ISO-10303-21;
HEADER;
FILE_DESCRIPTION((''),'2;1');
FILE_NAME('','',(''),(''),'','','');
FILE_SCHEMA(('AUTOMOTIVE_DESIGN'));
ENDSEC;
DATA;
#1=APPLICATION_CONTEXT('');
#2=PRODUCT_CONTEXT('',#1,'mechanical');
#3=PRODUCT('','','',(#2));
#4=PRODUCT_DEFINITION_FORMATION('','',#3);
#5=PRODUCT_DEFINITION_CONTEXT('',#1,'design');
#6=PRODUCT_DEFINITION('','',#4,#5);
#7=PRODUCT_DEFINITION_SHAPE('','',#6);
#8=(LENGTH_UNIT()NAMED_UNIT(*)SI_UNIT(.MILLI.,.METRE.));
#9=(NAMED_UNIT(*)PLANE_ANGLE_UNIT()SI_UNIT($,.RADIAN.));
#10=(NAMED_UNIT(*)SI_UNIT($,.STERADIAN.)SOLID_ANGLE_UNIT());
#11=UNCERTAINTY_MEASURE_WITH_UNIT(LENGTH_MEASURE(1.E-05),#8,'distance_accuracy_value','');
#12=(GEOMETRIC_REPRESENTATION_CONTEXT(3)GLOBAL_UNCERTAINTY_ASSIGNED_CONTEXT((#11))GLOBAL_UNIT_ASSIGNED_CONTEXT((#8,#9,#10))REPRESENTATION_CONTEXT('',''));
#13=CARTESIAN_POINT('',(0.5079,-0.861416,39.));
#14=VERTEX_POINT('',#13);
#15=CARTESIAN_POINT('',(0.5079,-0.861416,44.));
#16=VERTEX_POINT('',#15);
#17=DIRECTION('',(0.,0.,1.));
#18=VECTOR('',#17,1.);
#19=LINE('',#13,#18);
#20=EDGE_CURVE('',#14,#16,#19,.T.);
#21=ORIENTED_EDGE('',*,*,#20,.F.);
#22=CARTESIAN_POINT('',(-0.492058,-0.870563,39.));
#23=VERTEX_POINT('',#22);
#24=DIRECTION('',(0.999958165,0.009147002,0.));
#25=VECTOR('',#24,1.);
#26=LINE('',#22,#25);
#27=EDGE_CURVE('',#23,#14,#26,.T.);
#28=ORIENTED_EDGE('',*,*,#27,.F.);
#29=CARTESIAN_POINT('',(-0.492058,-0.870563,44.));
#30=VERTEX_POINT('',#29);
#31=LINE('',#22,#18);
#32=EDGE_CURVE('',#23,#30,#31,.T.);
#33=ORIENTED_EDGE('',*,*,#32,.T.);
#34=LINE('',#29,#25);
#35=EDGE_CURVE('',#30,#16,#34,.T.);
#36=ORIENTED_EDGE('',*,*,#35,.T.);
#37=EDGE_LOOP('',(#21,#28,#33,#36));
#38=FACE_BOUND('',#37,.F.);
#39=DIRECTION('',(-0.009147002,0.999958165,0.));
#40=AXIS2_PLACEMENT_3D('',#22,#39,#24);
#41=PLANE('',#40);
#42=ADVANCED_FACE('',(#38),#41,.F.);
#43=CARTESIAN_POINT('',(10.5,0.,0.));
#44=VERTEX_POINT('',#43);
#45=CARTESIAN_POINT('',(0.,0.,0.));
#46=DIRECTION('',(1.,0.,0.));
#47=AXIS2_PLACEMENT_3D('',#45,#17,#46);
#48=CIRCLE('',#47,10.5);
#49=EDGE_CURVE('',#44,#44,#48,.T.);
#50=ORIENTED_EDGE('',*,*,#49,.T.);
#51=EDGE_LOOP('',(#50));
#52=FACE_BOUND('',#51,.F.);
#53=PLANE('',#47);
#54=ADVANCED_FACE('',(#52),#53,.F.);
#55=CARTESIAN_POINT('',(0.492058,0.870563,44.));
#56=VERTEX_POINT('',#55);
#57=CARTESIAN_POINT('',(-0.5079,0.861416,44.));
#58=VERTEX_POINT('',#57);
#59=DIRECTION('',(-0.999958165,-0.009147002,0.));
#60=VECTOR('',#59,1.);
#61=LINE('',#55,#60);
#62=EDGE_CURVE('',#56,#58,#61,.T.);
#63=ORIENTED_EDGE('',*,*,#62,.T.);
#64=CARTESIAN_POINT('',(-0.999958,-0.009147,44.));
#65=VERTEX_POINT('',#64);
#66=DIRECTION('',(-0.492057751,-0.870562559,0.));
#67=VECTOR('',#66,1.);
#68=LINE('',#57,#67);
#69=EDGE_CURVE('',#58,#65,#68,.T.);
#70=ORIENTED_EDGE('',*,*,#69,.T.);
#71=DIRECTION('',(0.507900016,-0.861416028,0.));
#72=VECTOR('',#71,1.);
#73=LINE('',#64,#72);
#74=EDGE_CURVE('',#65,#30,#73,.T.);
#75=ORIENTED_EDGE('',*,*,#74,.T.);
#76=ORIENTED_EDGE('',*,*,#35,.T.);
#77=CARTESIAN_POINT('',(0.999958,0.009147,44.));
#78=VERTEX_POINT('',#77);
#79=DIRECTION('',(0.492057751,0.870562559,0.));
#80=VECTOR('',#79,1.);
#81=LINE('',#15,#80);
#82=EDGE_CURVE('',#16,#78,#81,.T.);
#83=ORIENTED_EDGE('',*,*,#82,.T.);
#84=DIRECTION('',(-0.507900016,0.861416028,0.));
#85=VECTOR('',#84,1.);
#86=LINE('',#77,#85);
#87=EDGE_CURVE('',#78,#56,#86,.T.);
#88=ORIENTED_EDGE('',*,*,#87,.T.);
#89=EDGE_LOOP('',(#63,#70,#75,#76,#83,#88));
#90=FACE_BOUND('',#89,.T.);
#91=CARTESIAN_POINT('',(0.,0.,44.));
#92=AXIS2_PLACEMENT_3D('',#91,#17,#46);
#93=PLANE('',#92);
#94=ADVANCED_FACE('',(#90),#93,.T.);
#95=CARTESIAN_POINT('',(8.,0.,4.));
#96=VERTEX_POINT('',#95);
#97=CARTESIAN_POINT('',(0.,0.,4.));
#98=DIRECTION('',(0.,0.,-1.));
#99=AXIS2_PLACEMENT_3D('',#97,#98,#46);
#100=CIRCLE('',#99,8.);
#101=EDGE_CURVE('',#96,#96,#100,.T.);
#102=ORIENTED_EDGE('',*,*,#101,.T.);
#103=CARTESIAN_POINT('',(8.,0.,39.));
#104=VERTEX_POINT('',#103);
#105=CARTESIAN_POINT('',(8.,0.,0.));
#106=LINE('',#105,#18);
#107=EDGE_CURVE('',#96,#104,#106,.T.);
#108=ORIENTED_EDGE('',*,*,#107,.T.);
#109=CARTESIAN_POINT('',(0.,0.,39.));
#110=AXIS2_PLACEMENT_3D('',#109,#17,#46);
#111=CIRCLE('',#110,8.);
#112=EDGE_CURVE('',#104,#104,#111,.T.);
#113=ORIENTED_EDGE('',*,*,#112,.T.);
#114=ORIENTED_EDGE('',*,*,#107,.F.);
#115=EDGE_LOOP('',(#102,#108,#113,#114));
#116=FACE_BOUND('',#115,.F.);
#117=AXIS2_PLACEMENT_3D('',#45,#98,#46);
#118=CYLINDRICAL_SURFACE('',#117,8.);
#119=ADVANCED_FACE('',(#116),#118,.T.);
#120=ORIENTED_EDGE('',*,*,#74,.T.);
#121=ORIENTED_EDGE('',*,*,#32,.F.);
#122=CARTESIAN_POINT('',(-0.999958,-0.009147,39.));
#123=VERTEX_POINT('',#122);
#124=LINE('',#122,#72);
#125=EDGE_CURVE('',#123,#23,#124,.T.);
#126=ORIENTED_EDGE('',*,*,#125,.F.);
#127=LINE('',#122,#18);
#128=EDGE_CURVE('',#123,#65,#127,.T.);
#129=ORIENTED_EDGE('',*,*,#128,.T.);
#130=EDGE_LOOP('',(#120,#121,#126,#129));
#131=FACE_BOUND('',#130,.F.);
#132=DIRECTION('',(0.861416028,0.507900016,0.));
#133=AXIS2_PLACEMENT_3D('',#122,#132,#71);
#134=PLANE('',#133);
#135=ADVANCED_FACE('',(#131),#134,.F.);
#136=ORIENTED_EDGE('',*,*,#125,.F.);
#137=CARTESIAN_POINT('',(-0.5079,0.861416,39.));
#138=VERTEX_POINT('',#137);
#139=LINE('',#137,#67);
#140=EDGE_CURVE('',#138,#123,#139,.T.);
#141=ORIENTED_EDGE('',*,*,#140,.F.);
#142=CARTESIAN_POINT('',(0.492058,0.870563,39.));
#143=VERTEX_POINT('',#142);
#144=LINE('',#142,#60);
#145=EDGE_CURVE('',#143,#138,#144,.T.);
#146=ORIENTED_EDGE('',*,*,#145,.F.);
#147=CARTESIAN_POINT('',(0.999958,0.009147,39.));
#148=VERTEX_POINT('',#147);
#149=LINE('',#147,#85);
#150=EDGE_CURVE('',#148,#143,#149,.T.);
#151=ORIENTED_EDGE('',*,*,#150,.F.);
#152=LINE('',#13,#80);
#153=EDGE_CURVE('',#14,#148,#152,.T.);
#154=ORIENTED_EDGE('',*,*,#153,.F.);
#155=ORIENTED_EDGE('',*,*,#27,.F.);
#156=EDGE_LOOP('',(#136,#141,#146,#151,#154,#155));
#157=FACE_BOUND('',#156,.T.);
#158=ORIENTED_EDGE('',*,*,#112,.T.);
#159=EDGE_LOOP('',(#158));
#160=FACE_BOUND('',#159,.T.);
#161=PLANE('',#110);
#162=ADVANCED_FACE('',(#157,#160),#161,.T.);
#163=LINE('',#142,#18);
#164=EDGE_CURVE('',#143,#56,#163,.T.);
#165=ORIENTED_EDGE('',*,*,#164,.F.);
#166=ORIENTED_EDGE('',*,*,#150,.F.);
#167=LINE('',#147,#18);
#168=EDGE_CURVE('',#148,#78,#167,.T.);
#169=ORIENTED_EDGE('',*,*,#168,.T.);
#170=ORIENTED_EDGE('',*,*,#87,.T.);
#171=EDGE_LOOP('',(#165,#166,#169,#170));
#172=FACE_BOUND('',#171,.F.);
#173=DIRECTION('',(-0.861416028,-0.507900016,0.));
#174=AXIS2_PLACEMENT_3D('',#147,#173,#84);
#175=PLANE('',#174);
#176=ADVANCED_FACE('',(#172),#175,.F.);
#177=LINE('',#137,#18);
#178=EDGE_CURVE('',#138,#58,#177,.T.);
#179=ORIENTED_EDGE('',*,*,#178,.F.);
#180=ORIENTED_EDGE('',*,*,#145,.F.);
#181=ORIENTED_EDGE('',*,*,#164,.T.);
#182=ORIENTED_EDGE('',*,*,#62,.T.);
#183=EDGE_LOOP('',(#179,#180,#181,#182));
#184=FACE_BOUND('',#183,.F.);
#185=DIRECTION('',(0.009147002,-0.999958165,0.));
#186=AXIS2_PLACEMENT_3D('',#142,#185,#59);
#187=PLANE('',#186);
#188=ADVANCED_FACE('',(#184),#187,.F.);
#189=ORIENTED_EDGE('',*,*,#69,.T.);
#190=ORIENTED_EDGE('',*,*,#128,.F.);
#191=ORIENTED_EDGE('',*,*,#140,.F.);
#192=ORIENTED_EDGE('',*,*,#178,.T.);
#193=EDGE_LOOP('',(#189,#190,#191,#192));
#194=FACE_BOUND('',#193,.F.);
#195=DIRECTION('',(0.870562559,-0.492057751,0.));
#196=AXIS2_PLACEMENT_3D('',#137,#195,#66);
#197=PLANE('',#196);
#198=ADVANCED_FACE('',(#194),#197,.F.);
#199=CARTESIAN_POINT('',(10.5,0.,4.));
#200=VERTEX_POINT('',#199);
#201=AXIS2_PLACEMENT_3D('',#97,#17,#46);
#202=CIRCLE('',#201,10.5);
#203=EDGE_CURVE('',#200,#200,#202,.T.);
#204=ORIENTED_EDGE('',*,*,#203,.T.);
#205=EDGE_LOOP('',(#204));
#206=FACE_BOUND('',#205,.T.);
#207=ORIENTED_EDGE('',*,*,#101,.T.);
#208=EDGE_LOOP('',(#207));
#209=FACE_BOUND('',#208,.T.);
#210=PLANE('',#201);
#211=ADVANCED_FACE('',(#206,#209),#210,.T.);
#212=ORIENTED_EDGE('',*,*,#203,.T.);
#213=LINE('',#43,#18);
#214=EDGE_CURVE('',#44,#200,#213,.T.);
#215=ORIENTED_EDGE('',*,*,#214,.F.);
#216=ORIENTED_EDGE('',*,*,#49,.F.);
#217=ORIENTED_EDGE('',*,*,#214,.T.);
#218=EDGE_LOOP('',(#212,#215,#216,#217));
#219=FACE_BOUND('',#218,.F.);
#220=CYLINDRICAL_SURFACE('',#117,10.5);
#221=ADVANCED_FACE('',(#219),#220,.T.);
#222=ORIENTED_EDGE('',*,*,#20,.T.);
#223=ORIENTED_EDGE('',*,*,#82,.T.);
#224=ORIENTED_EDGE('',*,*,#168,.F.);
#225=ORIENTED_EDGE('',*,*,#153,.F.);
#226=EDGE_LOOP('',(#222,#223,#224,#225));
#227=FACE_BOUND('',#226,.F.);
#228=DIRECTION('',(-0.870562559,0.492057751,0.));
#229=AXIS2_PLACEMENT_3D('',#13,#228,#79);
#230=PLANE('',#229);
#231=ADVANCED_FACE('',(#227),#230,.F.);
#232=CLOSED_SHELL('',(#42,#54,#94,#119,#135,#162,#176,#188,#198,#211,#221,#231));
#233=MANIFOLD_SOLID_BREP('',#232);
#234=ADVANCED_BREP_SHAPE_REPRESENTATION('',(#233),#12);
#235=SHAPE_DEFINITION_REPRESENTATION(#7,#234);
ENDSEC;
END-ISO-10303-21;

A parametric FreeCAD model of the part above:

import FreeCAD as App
import Part
import Sketcher
from FreeCAD import Vector
Q = App.Units.Quantity

doc = App.newDocument("Part")
body = doc.addObject("PartDesign::Body", "Body")

# Sketch on XY plane
sketch1 = body.newObject("Sketcher::SketchObject", "Sketch")
sketch1.AttachmentSupport = (doc.getObject("XY_Plane"), [""])
sketch1.MapMode = "FlatFace"
sketch1.addGeometry(Part.Circle(Vector(0, 0, 0), Vector(0, 0, 1), 10), False)
sketch1.addConstraint([
    Sketcher.Constraint("Coincident", 0, 3, -1, 1),
    Sketcher.Constraint("Diameter", 0, Q("21 mm")),
])
pad1 = body.newObject("PartDesign::Pad", "Pad")
pad1.Profile = sketch1
pad1.Length = 4

# Sketch on XY plane
sketch2 = body.newObject("Sketcher::SketchObject", "Sketch001")
sketch2.AttachmentSupport = (doc.getObject("XY_Plane"), [""])
sketch2.MapMode = "FlatFace"
sketch2.addGeometry(Part.Circle(Vector(0, 0, 0), Vector(0, 0, 1), 8), False)
sketch2.addConstraint([
    Sketcher.Constraint("Coincident", 0, 3, -1, 1),
    Sketcher.Constraint("Diameter", 0, Q("16 mm")),
])
pad2 = body.newObject("PartDesign::Pad", "Pad001")
pad2.Profile = sketch2
pad2.Length = 39

# Sketch on XY plane
sketch3 = body.newObject("Sketcher::SketchObject", "Sketch002")
sketch3.AttachmentSupport = (doc.getObject("XY_Plane"), [""])
sketch3.MapMode = "FlatFace"
sketch3.AttachmentOffset = App.Placement(Vector(0, 0, 39), App.Rotation())
sketch3.addGeometry([
    Part.LineSegment(Vector(0.5079, -0.861416, 0), Vector(0.999958, 0.009147, 0)),  # 0
    Part.LineSegment(Vector(0.999958, 0.009147, 0), Vector(0.492058, 0.870563, 0)),  # 1
    Part.LineSegment(Vector(0.492058, 0.870563, 0), Vector(-0.5079, 0.861416, 0)),  # 2
    Part.LineSegment(Vector(-0.5079, 0.861416, 0), Vector(-0.999958, -0.009147, 0)),  # 3
    Part.LineSegment(Vector(-0.999958, -0.009147, 0), Vector(-0.492058, -0.870563, 0)),  # 4
    Part.LineSegment(Vector(-0.492058, -0.870563, 0), Vector(0.5079, -0.861416, 0)),  # 5
], False)
sketch3.addConstraint([
    Sketcher.Constraint("Coincident", 0, 2, 1, 1),
    Sketcher.Constraint("Coincident", 1, 2, 2, 1),
    Sketcher.Constraint("Coincident", 2, 2, 3, 1),
    Sketcher.Constraint("Coincident", 3, 2, 4, 1),
    Sketcher.Constraint("Coincident", 4, 2, 5, 1),
    Sketcher.Constraint("Coincident", 5, 2, 0, 1),
    Sketcher.Constraint("Distance", 0, Q("1.000001 mm")),
    Sketcher.Constraint("Distance", 1, Q("1 mm")),
    Sketcher.Constraint("Distance", 2, Q("1 mm")),
    Sketcher.Constraint("Distance", 3, Q("1.000001 mm")),
    Sketcher.Constraint("Distance", 4, Q("1 mm")),
    Sketcher.Constraint("Distance", 5, Q("1 mm")),
    Sketcher.Constraint("DistanceX", 2, 2, -1, 1, Q("0.5079 mm")),
    Sketcher.Constraint("DistanceX", -1, 1, 5, 2, Q("0.5079 mm")),
    Sketcher.Constraint("DistanceX", 1, 2, 0, 2, Q("0.5079 mm")),
    Sketcher.Constraint("DistanceX", 3, 2, 4, 2, Q("0.5079 mm")),
    Sketcher.Constraint("DistanceX", -1, 1, 0, 2, Q("0.999958 mm")),
    Sketcher.Constraint("DistanceY", -1, 1, 0, 2, Q("0.009147 mm")),
])
pad3 = body.newObject("PartDesign::Pad", "Pad002")
pad3.Profile = sketch3
pad3.Length = 5

doc.recompute()
